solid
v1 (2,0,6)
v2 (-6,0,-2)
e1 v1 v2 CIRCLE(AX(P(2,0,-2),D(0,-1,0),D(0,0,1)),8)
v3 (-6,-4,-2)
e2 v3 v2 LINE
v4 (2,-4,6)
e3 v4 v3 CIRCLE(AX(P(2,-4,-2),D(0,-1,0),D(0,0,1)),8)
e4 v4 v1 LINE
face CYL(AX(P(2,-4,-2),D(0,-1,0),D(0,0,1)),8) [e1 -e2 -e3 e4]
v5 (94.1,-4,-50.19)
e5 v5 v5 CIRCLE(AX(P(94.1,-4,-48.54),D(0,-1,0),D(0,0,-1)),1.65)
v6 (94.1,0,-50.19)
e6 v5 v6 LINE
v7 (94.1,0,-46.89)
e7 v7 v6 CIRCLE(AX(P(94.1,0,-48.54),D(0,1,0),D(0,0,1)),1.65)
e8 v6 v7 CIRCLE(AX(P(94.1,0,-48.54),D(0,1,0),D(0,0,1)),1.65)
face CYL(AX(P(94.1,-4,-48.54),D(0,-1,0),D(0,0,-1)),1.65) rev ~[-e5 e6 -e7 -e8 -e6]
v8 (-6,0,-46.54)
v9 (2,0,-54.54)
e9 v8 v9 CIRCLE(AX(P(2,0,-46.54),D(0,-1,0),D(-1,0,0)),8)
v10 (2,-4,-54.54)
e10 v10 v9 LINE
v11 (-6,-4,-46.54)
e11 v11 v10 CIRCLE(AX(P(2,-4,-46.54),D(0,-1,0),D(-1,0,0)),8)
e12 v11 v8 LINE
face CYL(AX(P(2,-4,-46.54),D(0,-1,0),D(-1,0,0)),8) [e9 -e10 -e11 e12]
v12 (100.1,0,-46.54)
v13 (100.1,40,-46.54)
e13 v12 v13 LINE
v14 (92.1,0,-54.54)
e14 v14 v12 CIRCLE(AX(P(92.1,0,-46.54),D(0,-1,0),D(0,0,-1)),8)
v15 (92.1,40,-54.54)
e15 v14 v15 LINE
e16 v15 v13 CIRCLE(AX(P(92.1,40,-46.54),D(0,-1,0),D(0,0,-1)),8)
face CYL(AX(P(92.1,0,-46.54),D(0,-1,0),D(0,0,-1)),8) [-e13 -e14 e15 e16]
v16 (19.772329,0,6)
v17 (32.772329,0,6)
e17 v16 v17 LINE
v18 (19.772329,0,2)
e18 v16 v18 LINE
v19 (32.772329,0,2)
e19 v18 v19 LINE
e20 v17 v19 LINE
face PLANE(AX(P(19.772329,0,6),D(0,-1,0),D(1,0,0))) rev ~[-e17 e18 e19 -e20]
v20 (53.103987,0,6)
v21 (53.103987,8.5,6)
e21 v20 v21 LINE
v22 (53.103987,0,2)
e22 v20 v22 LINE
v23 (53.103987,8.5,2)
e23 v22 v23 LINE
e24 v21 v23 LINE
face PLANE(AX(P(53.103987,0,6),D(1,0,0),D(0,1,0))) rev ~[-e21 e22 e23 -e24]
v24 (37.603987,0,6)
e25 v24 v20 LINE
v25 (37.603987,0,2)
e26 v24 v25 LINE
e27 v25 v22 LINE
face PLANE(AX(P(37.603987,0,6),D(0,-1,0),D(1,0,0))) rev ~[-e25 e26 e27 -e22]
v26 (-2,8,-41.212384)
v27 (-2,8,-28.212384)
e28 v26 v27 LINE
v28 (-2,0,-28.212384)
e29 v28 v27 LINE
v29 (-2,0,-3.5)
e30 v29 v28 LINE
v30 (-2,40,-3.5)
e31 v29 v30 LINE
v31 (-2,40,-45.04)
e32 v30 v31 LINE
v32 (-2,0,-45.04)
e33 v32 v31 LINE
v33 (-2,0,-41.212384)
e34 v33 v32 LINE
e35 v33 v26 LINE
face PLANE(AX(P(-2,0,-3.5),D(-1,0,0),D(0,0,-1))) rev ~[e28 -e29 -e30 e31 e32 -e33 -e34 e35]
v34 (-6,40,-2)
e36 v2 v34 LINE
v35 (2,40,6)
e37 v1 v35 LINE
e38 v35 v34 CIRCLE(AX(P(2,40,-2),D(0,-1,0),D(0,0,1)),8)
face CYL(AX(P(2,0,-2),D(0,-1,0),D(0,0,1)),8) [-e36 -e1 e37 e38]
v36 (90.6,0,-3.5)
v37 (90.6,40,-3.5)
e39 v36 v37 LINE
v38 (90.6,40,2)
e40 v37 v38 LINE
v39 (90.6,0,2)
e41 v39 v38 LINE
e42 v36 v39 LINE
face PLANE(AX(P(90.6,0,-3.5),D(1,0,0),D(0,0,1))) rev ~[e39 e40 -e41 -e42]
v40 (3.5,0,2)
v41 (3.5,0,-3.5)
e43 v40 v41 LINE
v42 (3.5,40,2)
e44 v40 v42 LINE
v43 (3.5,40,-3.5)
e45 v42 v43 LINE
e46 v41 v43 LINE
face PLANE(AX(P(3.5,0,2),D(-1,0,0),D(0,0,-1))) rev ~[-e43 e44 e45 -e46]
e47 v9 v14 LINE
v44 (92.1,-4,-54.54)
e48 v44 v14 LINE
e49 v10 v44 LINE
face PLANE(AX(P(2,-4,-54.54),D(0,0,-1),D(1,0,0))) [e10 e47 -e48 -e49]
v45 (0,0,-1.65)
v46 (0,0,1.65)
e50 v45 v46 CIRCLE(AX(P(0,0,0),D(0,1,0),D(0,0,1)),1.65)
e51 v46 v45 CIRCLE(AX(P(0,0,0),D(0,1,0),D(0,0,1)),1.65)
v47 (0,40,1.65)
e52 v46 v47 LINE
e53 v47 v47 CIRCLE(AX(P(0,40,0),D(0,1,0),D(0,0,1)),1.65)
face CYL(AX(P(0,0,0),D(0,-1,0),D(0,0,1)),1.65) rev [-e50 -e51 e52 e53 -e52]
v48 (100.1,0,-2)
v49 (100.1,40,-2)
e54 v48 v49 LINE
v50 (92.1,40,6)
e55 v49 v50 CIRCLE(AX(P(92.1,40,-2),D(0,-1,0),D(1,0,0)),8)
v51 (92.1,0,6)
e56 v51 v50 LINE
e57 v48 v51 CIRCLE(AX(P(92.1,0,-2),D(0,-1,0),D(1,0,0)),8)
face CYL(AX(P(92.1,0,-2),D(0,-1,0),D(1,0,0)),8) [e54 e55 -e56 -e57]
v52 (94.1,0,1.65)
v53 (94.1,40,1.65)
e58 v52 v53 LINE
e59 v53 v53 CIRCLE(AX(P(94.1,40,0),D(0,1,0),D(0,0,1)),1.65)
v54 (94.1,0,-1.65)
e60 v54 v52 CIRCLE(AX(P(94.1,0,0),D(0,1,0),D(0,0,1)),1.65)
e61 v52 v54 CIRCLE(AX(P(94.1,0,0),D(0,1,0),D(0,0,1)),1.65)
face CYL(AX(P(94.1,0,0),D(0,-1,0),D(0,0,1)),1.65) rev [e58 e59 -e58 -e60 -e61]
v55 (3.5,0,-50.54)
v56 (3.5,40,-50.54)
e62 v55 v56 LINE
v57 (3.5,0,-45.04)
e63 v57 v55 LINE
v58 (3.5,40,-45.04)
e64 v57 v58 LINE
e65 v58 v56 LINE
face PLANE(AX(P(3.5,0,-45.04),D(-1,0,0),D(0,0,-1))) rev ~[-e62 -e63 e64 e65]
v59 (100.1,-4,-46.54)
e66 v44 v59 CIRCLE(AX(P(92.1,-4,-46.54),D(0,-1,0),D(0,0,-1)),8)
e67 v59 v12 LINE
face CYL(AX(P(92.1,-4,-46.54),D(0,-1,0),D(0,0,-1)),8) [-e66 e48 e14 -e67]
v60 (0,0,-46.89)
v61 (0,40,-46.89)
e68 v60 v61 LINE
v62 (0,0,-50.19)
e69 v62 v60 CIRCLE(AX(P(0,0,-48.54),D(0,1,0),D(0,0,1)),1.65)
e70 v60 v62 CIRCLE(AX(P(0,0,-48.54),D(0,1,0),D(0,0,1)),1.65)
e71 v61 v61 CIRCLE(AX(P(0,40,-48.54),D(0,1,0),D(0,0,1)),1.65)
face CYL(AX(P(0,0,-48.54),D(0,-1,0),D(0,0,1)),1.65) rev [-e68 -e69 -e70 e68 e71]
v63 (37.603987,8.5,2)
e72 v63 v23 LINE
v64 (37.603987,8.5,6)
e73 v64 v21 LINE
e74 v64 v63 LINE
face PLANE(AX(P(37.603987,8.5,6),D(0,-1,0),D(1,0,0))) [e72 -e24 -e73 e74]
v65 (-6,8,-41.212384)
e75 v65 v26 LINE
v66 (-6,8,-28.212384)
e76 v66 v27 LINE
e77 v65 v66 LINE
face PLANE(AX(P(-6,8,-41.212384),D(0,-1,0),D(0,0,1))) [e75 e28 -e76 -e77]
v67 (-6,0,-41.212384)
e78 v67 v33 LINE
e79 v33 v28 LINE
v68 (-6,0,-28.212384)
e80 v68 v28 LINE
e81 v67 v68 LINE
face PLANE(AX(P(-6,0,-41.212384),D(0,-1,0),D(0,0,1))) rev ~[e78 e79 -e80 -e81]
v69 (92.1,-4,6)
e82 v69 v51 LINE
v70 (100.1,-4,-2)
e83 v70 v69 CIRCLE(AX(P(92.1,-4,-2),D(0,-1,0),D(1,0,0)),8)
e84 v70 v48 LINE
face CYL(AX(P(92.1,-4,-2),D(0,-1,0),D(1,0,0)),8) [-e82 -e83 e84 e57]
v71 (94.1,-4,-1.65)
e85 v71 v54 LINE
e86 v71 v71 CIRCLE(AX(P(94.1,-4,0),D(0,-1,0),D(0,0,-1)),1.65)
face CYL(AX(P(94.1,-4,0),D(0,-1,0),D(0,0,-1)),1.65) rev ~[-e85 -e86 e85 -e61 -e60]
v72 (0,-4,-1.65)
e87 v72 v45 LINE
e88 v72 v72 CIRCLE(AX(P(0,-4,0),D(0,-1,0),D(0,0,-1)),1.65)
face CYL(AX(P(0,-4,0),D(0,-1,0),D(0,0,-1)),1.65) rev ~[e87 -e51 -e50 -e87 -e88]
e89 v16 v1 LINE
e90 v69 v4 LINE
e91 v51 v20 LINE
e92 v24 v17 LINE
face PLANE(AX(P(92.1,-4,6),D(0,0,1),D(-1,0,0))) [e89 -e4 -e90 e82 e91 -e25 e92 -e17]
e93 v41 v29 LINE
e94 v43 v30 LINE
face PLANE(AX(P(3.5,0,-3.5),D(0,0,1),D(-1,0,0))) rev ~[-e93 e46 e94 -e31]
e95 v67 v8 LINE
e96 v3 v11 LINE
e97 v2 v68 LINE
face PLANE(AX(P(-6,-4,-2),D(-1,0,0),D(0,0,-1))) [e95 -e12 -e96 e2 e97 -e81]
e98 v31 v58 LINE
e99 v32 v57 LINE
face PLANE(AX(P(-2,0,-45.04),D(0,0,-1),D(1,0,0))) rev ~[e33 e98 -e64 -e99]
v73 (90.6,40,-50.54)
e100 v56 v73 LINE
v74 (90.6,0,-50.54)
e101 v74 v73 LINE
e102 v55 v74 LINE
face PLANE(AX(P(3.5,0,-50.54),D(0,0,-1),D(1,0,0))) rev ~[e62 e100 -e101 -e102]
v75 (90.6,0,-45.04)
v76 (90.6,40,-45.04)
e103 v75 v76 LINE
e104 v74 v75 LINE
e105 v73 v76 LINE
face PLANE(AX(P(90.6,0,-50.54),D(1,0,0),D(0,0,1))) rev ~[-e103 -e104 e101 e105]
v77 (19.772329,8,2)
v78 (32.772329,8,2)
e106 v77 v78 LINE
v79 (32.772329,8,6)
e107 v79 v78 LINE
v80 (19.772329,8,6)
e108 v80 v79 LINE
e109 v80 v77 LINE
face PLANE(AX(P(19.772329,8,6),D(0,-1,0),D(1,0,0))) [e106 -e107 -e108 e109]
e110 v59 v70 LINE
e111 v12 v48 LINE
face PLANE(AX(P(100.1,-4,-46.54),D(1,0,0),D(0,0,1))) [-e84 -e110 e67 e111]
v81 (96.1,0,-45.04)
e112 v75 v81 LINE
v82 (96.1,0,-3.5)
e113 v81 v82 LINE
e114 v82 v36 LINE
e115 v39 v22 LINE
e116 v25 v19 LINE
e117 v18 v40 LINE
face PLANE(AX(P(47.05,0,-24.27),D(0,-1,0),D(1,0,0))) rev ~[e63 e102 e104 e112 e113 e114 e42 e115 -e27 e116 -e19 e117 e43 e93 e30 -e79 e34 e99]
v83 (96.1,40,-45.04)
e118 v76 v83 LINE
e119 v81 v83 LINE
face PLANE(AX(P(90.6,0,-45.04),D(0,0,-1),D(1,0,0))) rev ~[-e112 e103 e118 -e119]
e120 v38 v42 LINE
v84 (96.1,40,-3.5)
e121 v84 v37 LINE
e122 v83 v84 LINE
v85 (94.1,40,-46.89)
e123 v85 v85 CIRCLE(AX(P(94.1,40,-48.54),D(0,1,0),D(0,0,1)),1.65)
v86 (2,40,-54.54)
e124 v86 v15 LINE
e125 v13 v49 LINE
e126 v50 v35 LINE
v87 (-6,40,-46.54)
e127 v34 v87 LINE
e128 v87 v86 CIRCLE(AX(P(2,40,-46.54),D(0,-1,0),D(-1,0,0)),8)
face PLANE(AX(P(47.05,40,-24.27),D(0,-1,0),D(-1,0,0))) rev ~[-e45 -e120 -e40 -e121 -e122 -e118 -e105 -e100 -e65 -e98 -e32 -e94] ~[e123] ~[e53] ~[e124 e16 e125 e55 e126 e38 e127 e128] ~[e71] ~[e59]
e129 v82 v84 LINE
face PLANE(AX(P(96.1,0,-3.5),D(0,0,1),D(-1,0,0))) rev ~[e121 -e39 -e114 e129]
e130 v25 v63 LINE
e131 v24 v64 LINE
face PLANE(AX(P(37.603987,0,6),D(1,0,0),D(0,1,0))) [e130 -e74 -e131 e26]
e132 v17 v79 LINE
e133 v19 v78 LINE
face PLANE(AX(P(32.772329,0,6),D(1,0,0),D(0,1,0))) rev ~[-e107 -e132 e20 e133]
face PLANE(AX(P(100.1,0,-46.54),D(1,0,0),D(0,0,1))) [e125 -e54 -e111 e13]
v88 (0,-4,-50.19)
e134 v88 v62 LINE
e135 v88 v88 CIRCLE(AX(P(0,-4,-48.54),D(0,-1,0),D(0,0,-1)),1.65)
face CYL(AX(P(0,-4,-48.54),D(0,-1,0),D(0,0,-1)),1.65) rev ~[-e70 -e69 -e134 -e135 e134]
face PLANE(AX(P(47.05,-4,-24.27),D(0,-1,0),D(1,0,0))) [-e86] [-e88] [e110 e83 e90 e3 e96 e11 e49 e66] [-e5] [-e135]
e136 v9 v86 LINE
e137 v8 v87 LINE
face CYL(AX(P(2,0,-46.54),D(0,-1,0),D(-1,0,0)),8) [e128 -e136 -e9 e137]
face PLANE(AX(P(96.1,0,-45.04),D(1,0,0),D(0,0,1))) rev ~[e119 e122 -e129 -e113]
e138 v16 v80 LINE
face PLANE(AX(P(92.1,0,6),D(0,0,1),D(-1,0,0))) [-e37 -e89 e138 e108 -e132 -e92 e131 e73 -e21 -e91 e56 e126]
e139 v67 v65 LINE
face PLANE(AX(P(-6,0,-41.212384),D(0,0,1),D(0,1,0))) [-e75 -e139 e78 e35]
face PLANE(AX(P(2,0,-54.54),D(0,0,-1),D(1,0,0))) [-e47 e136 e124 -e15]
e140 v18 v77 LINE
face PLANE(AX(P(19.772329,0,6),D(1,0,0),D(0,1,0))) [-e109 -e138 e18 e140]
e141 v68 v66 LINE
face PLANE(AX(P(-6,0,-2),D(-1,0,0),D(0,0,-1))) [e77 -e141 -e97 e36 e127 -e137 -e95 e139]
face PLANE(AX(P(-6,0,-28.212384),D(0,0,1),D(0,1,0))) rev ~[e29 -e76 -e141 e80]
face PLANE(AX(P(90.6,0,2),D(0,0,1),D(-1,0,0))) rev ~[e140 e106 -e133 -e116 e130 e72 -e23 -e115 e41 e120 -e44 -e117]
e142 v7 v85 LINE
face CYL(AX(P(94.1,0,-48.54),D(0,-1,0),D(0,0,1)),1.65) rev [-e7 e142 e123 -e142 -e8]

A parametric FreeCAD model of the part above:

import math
import FreeCAD as App
import Part
import Sketcher
Q = App.Units.Quantity


def add_polygon(sketch, points):
    """Adds a closed chain of lines whose ends are joined by coincident constraints."""
    first, n = sketch.GeometryCount, len(points)
    for a, b in zip(points, points[1:] + points[:1]):
        sketch.addGeometry(Part.LineSegment(App.Vector(*a, 0), App.Vector(*b, 0)), False)
    for i in range(n):
        sketch.addConstraint(Sketcher.Constraint("Coincident", first + i, 2, first + (i + 1) % n, 1))

doc = App.newDocument("Part")
body = doc.addObject("PartDesign::Body", "Body")

# Sketch on XZ plane
sketch1 = body.newObject("Sketcher::SketchObject", "Sketch")
sketch1.AttachmentSupport = (doc.getObject("XZ_Plane"), [""])
sketch1.MapMode = "FlatFace"
sketch1.addGeometry(Part.LineSegment(App.Vector(92.1, -54.5, 0), App.Vector(2, -54.5, 0)), False)  # 0
sketch1.addGeometry(Part.ArcOfCircle(Part.Circle(App.Vector(2, -46.5, 0), App.Vector(0, 0, 1), 8), math.radians(-180), math.radians(-90)), False)  # 1
sketch1.addGeometry(Part.LineSegment(App.Vector(-6, -46.5, 0), App.Vector(-6, -2, 0)), False)  # 2
sketch1.addGeometry(Part.ArcOfCircle(Part.Circle(App.Vector(2, -2, 0), App.Vector(0, 0, 1), 8), math.radians(90), math.radians(180)), False)  # 3
sketch1.addGeometry(Part.LineSegment(App.Vector(2, 6, 0), App.Vector(92.1, 6, 0)), False)  # 4
sketch1.addGeometry(Part.ArcOfCircle(Part.Circle(App.Vector(92.1, -2, 0), App.Vector(0, 0, 1), 8), math.radians(0), math.radians(90)), False)  # 5
sketch1.addGeometry(Part.LineSegment(App.Vector(100.1, -2, 0), App.Vector(100.1, -46.5, 0)), False)  # 6
sketch1.addGeometry(Part.ArcOfCircle(Part.Circle(App.Vector(92.1, -46.5, 0), App.Vector(0, 0, 1), 8), math.radians(-90), math.radians(0)), False)  # 7
sketch1.addGeometry(Part.Circle(App.Vector(94.1, 0, 0), App.Vector(0, 0, 1), 1.6), False)  # 8
sketch1.addGeometry(Part.Circle(App.Vector(0, 0, 0), App.Vector(0, 0, 1), 1.6), False)  # 9
sketch1.addGeometry(Part.Circle(App.Vector(94.1, -48.5, 0), App.Vector(0, 0, 1), 1.6), False)  # 10
add_polygon(sketch1, [(-2, -45), (3.5, -45), (3.5, -50.5), (90.6, -50.5), (90.6, -45), (96.1, -45), (96.1, -3.5), (90.6, -3.5), (90.6, 2), (3.5, 2), (3.5, -3.5), (-2, -3.5)])  # lines 11-22
sketch1.addGeometry(Part.Circle(App.Vector(0, -48.5, 0), App.Vector(0, 0, 1), 1.6), False)  # 23
sketch1.addConstraint([
    Sketcher.Constraint("Tangent", 0, 2, 1, 2),
    Sketcher.Constraint("Tangent", 1, 1, 2, 1),
    Sketcher.Constraint("Tangent", 2, 2, 3, 2),
    Sketcher.Constraint("Tangent", 3, 1, 4, 1),
    Sketcher.Constraint("Tangent", 4, 2, 5, 2),
    Sketcher.Constraint("Tangent", 5, 1, 6, 1),
    Sketcher.Constraint("Tangent", 6, 2, 7, 2),
    Sketcher.Constraint("Tangent", 7, 1, 0, 1),
    Sketcher.Constraint("Horizontal", 0),
    Sketcher.Constraint("Vertical", 2),
    Sketcher.Constraint("Horizontal", 4),
    Sketcher.Constraint("Vertical", 6),
    Sketcher.Constraint("Horizontal", 11),
    Sketcher.Constraint("Vertical", 12),
    Sketcher.Constraint("Horizontal", 13),
    Sketcher.Constraint("Vertical", 14),
    Sketcher.Constraint("Horizontal", 15),
    Sketcher.Constraint("Vertical", 16),
    Sketcher.Constraint("Horizontal", 17),
    Sketcher.Constraint("Vertical", 18),
    Sketcher.Constraint("Horizontal", 19),
    Sketcher.Constraint("Vertical", 20),
    Sketcher.Constraint("Horizontal", 21),
    Sketcher.Constraint("Vertical", 22),
    Sketcher.Constraint("Coincident", 9, 3, -1, 1),
    Sketcher.Constraint("Equal", 1, 3),
    Sketcher.Constraint("Equal", 3, 5),
    Sketcher.Constraint("Equal", 5, 7),
    Sketcher.Constraint("Equal", 8, 9),
    Sketcher.Constraint("Equal", 9, 10),
    Sketcher.Constraint("Equal", 10, 23),
    Sketcher.Constraint("PointOnObject", 8, 3, -1),
    Sketcher.Constraint("PointOnObject", 23, 3, -2),
    Sketcher.Constraint("Horizontal", 10, 3, 23, 3),
    Sketcher.Constraint("Horizontal", 11, 2, 14, 2),
    Sketcher.Constraint("Horizontal", 17, 2, 20, 2),
    Sketcher.Constraint("Vertical", 8, 3, 10, 3),
    Sketcher.Constraint("Vertical", 14, 2, 17, 2),
    Sketcher.Constraint("Vertical", 12, 2, 19, 2),
    Sketcher.Constraint("Equal", 11, 15),
    Sketcher.Constraint("Equal", 21, 12),
    Sketcher.Constraint("Equal", 14, 18),
    Sketcher.Constraint("Radius", 1, Q("8 mm")),
    Sketcher.Constraint("Diameter", 8, Q("3.3 mm")),
    Sketcher.Constraint("DistanceX", 0, 2, 0, 1, Q("90.1 mm")),
    Sketcher.Constraint("DistanceX", 11, 1, 11, 2, Q("5.5 mm")),
    Sketcher.Constraint("DistanceX", 13, 1, 13, 2, Q("87.1 mm")),
    Sketcher.Constraint("DistanceX", -1, 1, 1, 3, Q("2 mm")),
    Sketcher.Constraint("DistanceY", 3, 3, -1, 1, Q("2 mm")),
    Sketcher.Constraint("DistanceY", -1, 1, 18, 2, Q("2 mm")),
    Sketcher.Constraint("DistanceX", 21, 2, -1, 1, Q("2 mm")),
    Sketcher.Constraint("DistanceX", 5, 3, 8, 3, Q("2 mm")),
    Sketcher.Constraint("DistanceY", 10, 3, 7, 3, Q("2 mm")),
    Sketcher.Constraint("DistanceY", 12, 2, 23, 3, Q("2 mm")),
    Sketcher.Constraint("DistanceY", 2, 1, 2, 2, Q("44.54 mm")),
])
pad1 = body.newObject("PartDesign::Pad", "Pad")
pad1.Profile = sketch1
pad1.Length = 40
pad1.Reversed = True

# Sketch on XZ plane
sketch2 = body.newObject("Sketcher::SketchObject", "Sketch001")
sketch2.AttachmentSupport = (doc.getObject("XZ_Plane"), [""])
sketch2.MapMode = "FlatFace"
sketch2.AttachmentOffset = App.Placement(App.Vector(0, 0, 4), App.Rotation())
sketch2.addGeometry([
    Part.LineSegment(App.Vector(100.1, -46.5, 0), App.Vector(100.1, -2, 0)),  # 0
    Part.ArcOfCircle(Part.Circle(App.Vector(92.1, -2, 0), App.Vector(0, 0, 1), 8), math.radians(0), math.radians(90)),  # 1
    Part.LineSegment(App.Vector(92.1, 6, 0), App.Vector(2, 6, 0)),  # 2
    Part.ArcOfCircle(Part.Circle(App.Vector(2, -2, 0), App.Vector(0, 0, 1), 8), math.radians(90), math.radians(180)),  # 3
    Part.LineSegment(App.Vector(-6, -2, 0), App.Vector(-6, -46.5, 0)),  # 4
    Part.ArcOfCircle(Part.Circle(App.Vector(2, -46.5, 0), App.Vector(0, 0, 1), 8), math.radians(-180), math.radians(-90)),  # 5
    Part.LineSegment(App.Vector(2, -54.5, 0), App.Vector(92.1, -54.5, 0)),  # 6
    Part.ArcOfCircle(Part.Circle(App.Vector(92.1, -46.5, 0), App.Vector(0, 0, 1), 8), math.radians(-90), math.radians(0)),  # 7
    Part.Circle(App.Vector(0, -48.5, 0), App.Vector(0, 0, 1), 1.6),  # 8
    Part.Circle(App.Vector(94.1, -48.5, 0), App.Vector(0, 0, 1), 1.6),  # 9
    Part.Circle(App.Vector(0, 0, 0), App.Vector(0, 0, 1), 1.6),  # 10
    Part.Circle(App.Vector(94.1, 0, 0), App.Vector(0, 0, 1), 1.6),  # 11
], False)
sketch2.addConstraint([
    Sketcher.Constraint("Tangent", 0, 2, 1, 1),
    Sketcher.Constraint("Tangent", 1, 2, 2, 1),
    Sketcher.Constraint("Tangent", 2, 2, 3, 1),
    Sketcher.Constraint("Tangent", 3, 2, 4, 1),
    Sketcher.Constraint("Tangent", 4, 2, 5, 1),
    Sketcher.Constraint("Tangent", 5, 2, 6, 1),
    Sketcher.Constraint("Tangent", 6, 2, 7, 1),
    Sketcher.Constraint("Tangent", 7, 2, 0, 1),
    Sketcher.Constraint("Vertical", 0),
    Sketcher.Constraint("Horizontal", 2),
    Sketcher.Constraint("Vertical", 4),
    Sketcher.Constraint("Horizontal", 6),
    Sketcher.Constraint("Coincident", 10, 3, -1, 1),
    Sketcher.Constraint("Equal", 1, 3),
    Sketcher.Constraint("Equal", 3, 5),
    Sketcher.Constraint("Equal", 5, 7),
    Sketcher.Constraint("Equal", 8, 9),
    Sketcher.Constraint("Equal", 9, 10),
    Sketcher.Constraint("Equal", 10, 11),
    Sketcher.Constraint("PointOnObject", 8, 3, -2),
    Sketcher.Constraint("PointOnObject", 11, 3, -1),
    Sketcher.Constraint("Horizontal", 8, 3, 9, 3),
    Sketcher.Constraint("Vertical", 9, 3, 11, 3),
    Sketcher.Constraint("Radius", 1, Q("8 mm")),
    Sketcher.Constraint("Diameter", 8, Q("3.3 mm")),
    Sketcher.Constraint("DistanceX", 2, 2, 2, 1, Q("90.1 mm")),
    Sketcher.Constraint("DistanceY", 1, 3, -1, 1, Q("2 mm")),
    Sketcher.Constraint("DistanceX", -1, 1, 3, 3, Q("2 mm")),
    Sketcher.Constraint("DistanceY", 8, 3, 5, 3, Q("2 mm")),
    Sketcher.Constraint("DistanceX", 7, 3, 9, 3, Q("2 mm")),
    Sketcher.Constraint("DistanceY", 0, 1, 0, 2, Q("44.54 mm")),
])
pad2 = body.newObject("PartDesign::Pad", "Pad001")
pad2.Profile = sketch2
pad2.Length = 4
pad2.Reversed = True

# Sketch on XY plane
sketch3 = body.newObject("Sketcher::SketchObject", "Sketch002")
sketch3.AttachmentSupport = (doc.getObject("XY_Plane"), [""])
sketch3.MapMode = "FlatFace"
sketch3.AttachmentOffset = App.Placement(App.Vector(0, 0, 6), App.Rotation())
add_polygon(sketch3, [(38, 8), (38, 0), (53, 0), (53, 8)])  # lines 0-3
sketch3.addConstraint([
    Sketcher.Constraint("Vertical", 0),
    Sketcher.Constraint("Horizontal", 1),
    Sketcher.Constraint("Vertical", 2),
    Sketcher.Constraint("Horizontal", 3),
    Sketcher.Constraint("PointOnObject", 0, 2, -1),
    Sketcher.Constraint("DistanceX", 1, 1, 1, 2, Q("15.5 mm")),
    Sketcher.Constraint("DistanceY", 0, 2, 0, 1, Q("8.5 mm")),
    Sketcher.Constraint("DistanceX", -1, 1, 0, 2, Q("37.603987 mm")),
])
pocket1 = body.newObject("PartDesign::Pocket", "Pocket")
pocket1.Profile = sketch3
pocket1.Length = 4

# Sketch on YZ plane
sketch4 = body.newObject("Sketcher::SketchObject", "Sketch003")
sketch4.AttachmentSupport = (doc.getObject("YZ_Plane"), [""])
sketch4.MapMode = "FlatFace"
sketch4.AttachmentOffset = App.Placement(App.Vector(0, 0, -6), App.Rotation())
add_polygon(sketch4, [(8, -41), (0, -41), (0, -28), (8, -28)])  # lines 0-3
sketch4.addConstraint([
    Sketcher.Constraint("Horizontal", 0),
    Sketcher.Constraint("Vertical", 1),
    Sketcher.Constraint("Horizontal", 2),
    Sketcher.Constraint("Vertical", 3),
    Sketcher.Constraint("PointOnObject", 0, 2, -2),
    Sketcher.Constraint("DistanceX", 0, 2, 0, 1, Q("8 mm")),
    Sketcher.Constraint("DistanceY", 1, 1, 1, 2, Q("13 mm")),
    Sketcher.Constraint("DistanceY", 0, 2, -1, 1, Q("41.212384 mm")),
])
pocket2 = body.newObject("PartDesign::Pocket", "Pocket001")
pocket2.Profile = sketch4
pocket2.Length = 4
pocket2.Reversed = True

# Sketch on XY plane
sketch5 = body.newObject("Sketcher::SketchObject", "Sketch004")
sketch5.AttachmentSupport = (doc.getObject("XY_Plane"), [""])
sketch5.MapMode = "FlatFace"
sketch5.AttachmentOffset = App.Placement(App.Vector(0, 0, 6), App.Rotation())
add_polygon(sketch5, [(20, 8), (20, 0), (33, 0), (33, 8)])  # lines 0-3
sketch5.addConstraint([
    Sketcher.Constraint("Vertical", 0),
    Sketcher.Constraint("Horizontal", 1),
    Sketcher.Constraint("Vertical", 2),
    Sketcher.Constraint("Horizontal", 3),
    Sketcher.Constraint("PointOnObject", 0, 2, -1),
    Sketcher.Constraint("DistanceX", 1, 1, 1, 2, Q("13 mm")),
    Sketcher.Constraint("DistanceY", 0, 2, 0, 1, Q("8 mm")),
    Sketcher.Constraint("DistanceX", -1, 1, 0, 2, Q("19.772329 mm")),
])
pocket3 = body.newObject("PartDesign::Pocket", "Pocket002")
pocket3.Profile = sketch5
pocket3.Length = 4

doc.recompute()
